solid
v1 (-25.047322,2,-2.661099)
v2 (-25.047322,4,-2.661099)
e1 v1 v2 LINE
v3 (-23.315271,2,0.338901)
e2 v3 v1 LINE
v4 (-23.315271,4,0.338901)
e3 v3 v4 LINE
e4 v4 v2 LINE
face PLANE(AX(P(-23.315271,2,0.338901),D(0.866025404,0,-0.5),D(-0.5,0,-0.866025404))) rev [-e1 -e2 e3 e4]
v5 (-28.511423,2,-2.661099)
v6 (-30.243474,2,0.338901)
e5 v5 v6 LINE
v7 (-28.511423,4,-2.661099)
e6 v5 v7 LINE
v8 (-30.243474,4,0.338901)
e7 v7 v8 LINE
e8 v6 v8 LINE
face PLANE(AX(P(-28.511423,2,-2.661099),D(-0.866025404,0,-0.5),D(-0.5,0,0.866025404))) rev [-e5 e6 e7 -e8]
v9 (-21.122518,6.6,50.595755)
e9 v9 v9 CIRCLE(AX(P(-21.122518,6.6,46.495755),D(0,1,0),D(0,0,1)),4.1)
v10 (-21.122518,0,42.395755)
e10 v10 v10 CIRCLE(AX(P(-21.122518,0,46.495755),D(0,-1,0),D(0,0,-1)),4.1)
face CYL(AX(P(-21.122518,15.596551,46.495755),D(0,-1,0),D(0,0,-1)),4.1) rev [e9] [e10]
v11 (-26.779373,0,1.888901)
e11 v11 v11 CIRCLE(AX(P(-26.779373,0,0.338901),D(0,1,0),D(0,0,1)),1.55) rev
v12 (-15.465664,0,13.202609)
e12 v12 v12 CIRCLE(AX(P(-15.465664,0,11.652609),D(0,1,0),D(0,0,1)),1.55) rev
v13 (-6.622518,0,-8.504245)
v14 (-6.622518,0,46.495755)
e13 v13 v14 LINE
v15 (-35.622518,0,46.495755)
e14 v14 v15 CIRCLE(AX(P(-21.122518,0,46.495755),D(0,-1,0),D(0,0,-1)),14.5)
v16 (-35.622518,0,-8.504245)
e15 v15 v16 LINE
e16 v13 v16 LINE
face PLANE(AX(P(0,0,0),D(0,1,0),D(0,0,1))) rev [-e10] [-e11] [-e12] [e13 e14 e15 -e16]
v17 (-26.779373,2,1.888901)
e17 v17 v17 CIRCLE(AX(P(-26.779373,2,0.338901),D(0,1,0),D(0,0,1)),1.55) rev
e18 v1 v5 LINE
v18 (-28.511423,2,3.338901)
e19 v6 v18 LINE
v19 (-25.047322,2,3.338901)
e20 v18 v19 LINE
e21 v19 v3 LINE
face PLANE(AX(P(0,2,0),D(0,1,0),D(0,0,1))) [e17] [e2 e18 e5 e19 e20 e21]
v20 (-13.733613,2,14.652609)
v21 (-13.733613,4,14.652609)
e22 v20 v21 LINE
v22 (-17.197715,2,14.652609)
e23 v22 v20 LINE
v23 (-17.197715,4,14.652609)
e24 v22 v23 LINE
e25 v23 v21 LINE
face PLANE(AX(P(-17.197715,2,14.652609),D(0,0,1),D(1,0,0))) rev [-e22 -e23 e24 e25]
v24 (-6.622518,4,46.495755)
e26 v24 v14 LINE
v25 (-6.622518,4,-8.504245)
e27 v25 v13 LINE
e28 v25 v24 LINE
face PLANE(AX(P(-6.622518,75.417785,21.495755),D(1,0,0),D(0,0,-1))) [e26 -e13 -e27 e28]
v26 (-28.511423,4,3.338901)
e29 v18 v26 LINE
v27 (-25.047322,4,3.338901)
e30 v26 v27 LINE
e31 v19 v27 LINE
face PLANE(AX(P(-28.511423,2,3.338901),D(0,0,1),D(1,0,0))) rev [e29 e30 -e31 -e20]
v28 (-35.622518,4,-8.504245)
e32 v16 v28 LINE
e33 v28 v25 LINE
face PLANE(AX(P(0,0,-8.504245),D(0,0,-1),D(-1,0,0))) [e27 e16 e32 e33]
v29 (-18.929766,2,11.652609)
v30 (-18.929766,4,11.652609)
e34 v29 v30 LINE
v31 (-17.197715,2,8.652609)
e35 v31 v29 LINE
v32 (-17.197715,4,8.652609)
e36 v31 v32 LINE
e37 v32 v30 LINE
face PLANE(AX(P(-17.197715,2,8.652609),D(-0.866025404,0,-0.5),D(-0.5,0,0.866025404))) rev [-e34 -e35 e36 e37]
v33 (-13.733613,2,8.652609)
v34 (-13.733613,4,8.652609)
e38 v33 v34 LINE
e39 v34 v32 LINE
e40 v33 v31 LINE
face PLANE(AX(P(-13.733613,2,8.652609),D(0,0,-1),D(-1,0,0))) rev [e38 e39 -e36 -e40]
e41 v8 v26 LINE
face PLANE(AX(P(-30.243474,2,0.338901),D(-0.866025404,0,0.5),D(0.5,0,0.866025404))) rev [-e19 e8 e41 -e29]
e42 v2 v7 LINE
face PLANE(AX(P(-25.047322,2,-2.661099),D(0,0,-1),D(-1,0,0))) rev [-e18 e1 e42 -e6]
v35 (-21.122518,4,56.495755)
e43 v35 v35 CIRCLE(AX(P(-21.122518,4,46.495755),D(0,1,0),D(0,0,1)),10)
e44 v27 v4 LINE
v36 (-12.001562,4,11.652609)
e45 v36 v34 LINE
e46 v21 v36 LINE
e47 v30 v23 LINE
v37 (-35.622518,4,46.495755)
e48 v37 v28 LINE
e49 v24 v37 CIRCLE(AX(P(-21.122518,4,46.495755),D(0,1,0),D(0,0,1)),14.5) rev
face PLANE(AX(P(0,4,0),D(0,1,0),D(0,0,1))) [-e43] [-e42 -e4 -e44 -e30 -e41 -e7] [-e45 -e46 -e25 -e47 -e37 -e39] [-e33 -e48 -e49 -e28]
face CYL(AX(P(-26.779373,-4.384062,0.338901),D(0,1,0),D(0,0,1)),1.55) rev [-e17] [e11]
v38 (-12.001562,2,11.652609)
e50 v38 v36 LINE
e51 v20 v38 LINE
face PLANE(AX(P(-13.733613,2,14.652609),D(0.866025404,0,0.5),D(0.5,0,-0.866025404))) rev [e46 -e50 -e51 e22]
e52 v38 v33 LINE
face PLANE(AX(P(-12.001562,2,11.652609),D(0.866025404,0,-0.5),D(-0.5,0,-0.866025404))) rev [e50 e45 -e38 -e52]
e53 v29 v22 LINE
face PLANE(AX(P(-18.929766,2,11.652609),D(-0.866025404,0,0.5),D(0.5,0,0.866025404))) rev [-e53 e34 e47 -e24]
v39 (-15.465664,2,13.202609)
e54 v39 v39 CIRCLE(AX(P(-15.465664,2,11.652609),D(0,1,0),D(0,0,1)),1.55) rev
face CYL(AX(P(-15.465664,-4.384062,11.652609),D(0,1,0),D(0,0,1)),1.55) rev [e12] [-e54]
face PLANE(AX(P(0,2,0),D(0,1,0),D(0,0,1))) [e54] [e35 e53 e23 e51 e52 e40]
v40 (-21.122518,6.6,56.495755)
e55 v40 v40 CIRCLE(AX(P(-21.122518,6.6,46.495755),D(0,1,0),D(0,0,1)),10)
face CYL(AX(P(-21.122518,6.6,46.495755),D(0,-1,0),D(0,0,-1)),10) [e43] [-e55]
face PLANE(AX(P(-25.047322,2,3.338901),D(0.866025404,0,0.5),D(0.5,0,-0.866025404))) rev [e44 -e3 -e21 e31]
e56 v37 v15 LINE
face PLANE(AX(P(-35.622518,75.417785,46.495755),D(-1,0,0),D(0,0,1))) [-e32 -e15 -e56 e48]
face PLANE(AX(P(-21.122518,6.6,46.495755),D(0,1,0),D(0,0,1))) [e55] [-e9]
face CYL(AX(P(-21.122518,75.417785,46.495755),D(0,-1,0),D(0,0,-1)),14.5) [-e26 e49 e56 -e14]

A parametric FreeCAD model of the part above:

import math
import FreeCAD as App
import Part
import Sketcher

V = App.Vector
Q = App.Units.Quantity

doc = App.newDocument("Part")
params = doc.addObject("Spreadsheet::Sheet", "Params")
for row, (alias, value) in enumerate([
    ("sketch1_width", "50 mm"),
    ("pad1_length", "4 mm"),
    ("sketch2_diameter", "8.2 mm"),
    ("pocket1_length", "4 mm"),
    ("sketch3_diameter", "20 mm"),
    ("sketch3_diameter2", "8.2 mm"),
    ("pad2_length", "2.6 mm"),
    ("sketch4_radius", "14.5 mm"),
    ("sketch4_height", "25 mm"),
    ("pocket2_length", "4 mm"),
    ("sketch5_width", "29 mm"),
    ("sketch5_height", "4 mm"),
    ("pad3_length", "30 mm"),
    ("sketch6_diameter", "3.1 mm"),
    ("pocket3_length", "4 mm"),
    ("pocket4_length", "2 mm"),
], start=1):
    params.set(f"A{row}", alias)
    params.set(f"B{row}", "=" + value)
    params.setAlias(f"B{row}", alias)

body = doc.addObject("PartDesign::Body", "Body")

sketch1 = body.newObject("Sketcher::SketchObject", "Sketch")
sketch1.AttachmentSupport = (doc.getObject("XZ_Plane"), [""])
sketch1.MapMode = "FlatFace"
sketch1.addGeometry([
    Part.LineSegment(V(-46.122518, 21.495755, 0), V(-46.122518, 71.495755, 0)),
    Part.LineSegment(V(-46.122518, 71.495755, 0), V(3.877482, 71.495755, 0)),
    Part.LineSegment(V(3.877482, 71.495755, 0), V(3.877482, 21.495755, 0)),
    Part.LineSegment(V(3.877482, 21.495755, 0), V(-46.122518, 21.495755, 0)),
], False)
sketch1.addConstraint([
    Sketcher.Constraint("Coincident", 0, 2, 1, 1),
    Sketcher.Constraint("Coincident", 1, 2, 2, 1),
    Sketcher.Constraint("Coincident", 2, 2, 3, 1),
    Sketcher.Constraint("Coincident", 3, 2, 0, 1),
    Sketcher.Constraint("Vertical", 0),
    Sketcher.Constraint("Horizontal", 1),
    Sketcher.Constraint("Vertical", 2),
    Sketcher.Constraint("Horizontal", 3),
    Sketcher.Constraint("Equal", 3, 0),
    Sketcher.Constraint("DistanceX", 1, 1, 1, 2, Q("50 mm")),
    Sketcher.Constraint("DistanceX", 0, 2, -1, 1, Q("46.122518 mm")),
    Sketcher.Constraint("DistanceY", -1, 1, 0, 2, Q("71.495755 mm")),
])
sketch1.setExpression("Constraints[9]", "Params.sketch1_width")
pad1 = body.newObject("PartDesign::Pad", "Pad")
pad1.Profile = sketch1
pad1.setExpression("Length", "Params.pad1_length")
pad1.Reversed = True

sketch2 = body.newObject("Sketcher::SketchObject", "Sketch001")
sketch2.AttachmentSupport = (doc.getObject("XZ_Plane"), [""])
sketch2.MapMode = "FlatFace"
sketch2.addGeometry(Part.Circle(V(-21.122518, 46.495755, 0), V(0, 0, 1), 4.1), False)
sketch2.addConstraint([
    Sketcher.Constraint("Diameter", 0, Q("8.2 mm")),
    Sketcher.Constraint("DistanceX", 0, 3, -1, 1, Q("21.122518 mm")),
    Sketcher.Constraint("DistanceY", -1, 1, 0, 3, Q("46.495755 mm")),
])
sketch2.setExpression("Constraints[0]", "Params.sketch2_diameter")
pocket1 = body.newObject("PartDesign::Pocket", "Pocket")
pocket1.Profile = sketch2
pocket1.setExpression("Length", "Params.pocket1_length")

sketch3 = body.newObject("Sketcher::SketchObject", "Sketch002")
sketch3.AttachmentSupport = (doc.getObject("XZ_Plane"), [""])
sketch3.MapMode = "FlatFace"
sketch3.AttachmentOffset = App.Placement(V(0, 0, -4), App.Rotation())
sketch3.addGeometry([
    Part.Circle(V(-21.122518, 46.495755, 0), V(0, 0, 1), 10),
    Part.Circle(V(-21.122518, 46.495755, 0), V(0, 0, 1), 4.1),
], False)
sketch3.addConstraint([
    Sketcher.Constraint("Coincident", 1, 3, 0, 3),
    Sketcher.Constraint("Diameter", 0, Q("20 mm")),
    Sketcher.Constraint("Diameter", 1, Q("8.2 mm")),
    Sketcher.Constraint("DistanceX", 0, 3, -1, 1, Q("21.122518 mm")),
    Sketcher.Constraint("DistanceY", -1, 1, 0, 3, Q("46.495755 mm")),
])
sketch3.setExpression("Constraints[1]", "Params.sketch3_diameter")
sketch3.setExpression("Constraints[2]", "Params.sketch3_diameter2")
pad2 = body.newObject("PartDesign::Pad", "Pad001")
pad2.Profile = sketch3
pad2.setExpression("Length", "Params.pad2_length")
pad2.Reversed = True

sketch4 = body.newObject("Sketcher::SketchObject", "Sketch003")
sketch4.AttachmentSupport = (doc.getObject("XZ_Plane"), [""])
sketch4.MapMode = "FlatFace"
sketch4.addGeometry([
    Part.LineSegment(V(-54.225, 79.598, 0), V(-54.225, 13.394, 0)),
    Part.LineSegment(V(-54.225, 13.394, 0), V(11.979, 13.394, 0)),
    Part.LineSegment(V(11.979, 13.394, 0), V(11.979, 79.598, 0)),
    Part.LineSegment(V(11.979, 79.598, 0), V(-54.225, 79.598, 0)),
    Part.LineSegment(V(-35.622518, 21.495755, 0), V(-35.622518, 46.495755, 0)),
    Part.ArcOfCircle(Part.Circle(V(-21.122518, 46.495755, 0), V(0, 0, 1), 14.5), math.radians(0), math.radians(180)),
    Part.LineSegment(V(-6.622518, 46.495755, 0), V(-6.622518, 21.495755, 0)),
    Part.LineSegment(V(-6.622518, 21.495755, 0), V(-35.622518, 21.495755, 0)),
], False)
sketch4.addConstraint([
    Sketcher.Constraint("Coincident", 0, 2, 1, 1),
    Sketcher.Constraint("Coincident", 1, 2, 2, 1),
    Sketcher.Constraint("Coincident", 2, 2, 3, 1),
    Sketcher.Constraint("Coincident", 3, 2, 0, 1),
    Sketcher.Constraint("Tangent", 4, 2, 5, 2),
    Sketcher.Constraint("Tangent", 5, 1, 6, 1),
    Sketcher.Constraint("Coincident", 6, 2, 7, 1),
    Sketcher.Constraint("Coincident", 7, 2, 4, 1),
    Sketcher.Constraint("Vertical", 0),
    Sketcher.Constraint("Horizontal", 1),
    Sketcher.Constraint("Vertical", 2),
    Sketcher.Constraint("Horizontal", 3),
    Sketcher.Constraint("Vertical", 4),
    Sketcher.Constraint("Vertical", 6),
    Sketcher.Constraint("Horizontal", 7),
    Sketcher.Constraint("Equal", 3, 0),
    Sketcher.Constraint("Radius", 5, Q("14.5 mm")),
    Sketcher.Constraint("DistanceY", 4, 1, 4, 2, Q("25 mm")),
    Sketcher.Constraint("DistanceX", 1, 1, 1, 2, Q("66.204 mm")),
    Sketcher.Constraint("DistanceX", 0, 2, -1, 1, Q("54.225 mm")),
    Sketcher.Constraint("DistanceY", -1, 1, 0, 2, Q("13.394 mm")),
    Sketcher.Constraint("DistanceX", 5, 3, -1, 1, Q("21.122518 mm")),
    Sketcher.Constraint("DistanceY", -1, 1, 5, 3, Q("46.495755 mm")),
])
sketch4.setExpression("Constraints[16]", "Params.sketch4_radius")
sketch4.setExpression("Constraints[17]", "Params.sketch4_height")
pocket2 = body.newObject("PartDesign::Pocket", "Pocket001")
pocket2.Profile = sketch4
pocket2.setExpression("Length", "Params.pocket2_length")

sketch5 = body.newObject("Sketcher::SketchObject", "Sketch004")
sketch5.AttachmentSupport = (doc.getObject("XY_Plane"), [""])
sketch5.MapMode = "FlatFace"
sketch5.AttachmentOffset = App.Placement(V(0, 0, 21.495755), App.Rotation())
sketch5.addGeometry([
    Part.LineSegment(V(-6.622518, 4, 0), V(-6.622518, 0, 0)),
    Part.LineSegment(V(-6.622518, 0, 0), V(-35.622518, 0, 0)),
    Part.LineSegment(V(-35.622518, 0, 0), V(-35.622518, 4, 0)),
    Part.LineSegment(V(-35.622518, 4, 0), V(-6.622518, 4, 0)),
], False)
sketch5.addConstraint([
    Sketcher.Constraint("Coincident", 0, 2, 1, 1),
    Sketcher.Constraint("Coincident", 1, 2, 2, 1),
    Sketcher.Constraint("Coincident", 2, 2, 3, 1),
    Sketcher.Constraint("Coincident", 3, 2, 0, 1),
    Sketcher.Constraint("Vertical", 0),
    Sketcher.Constraint("Horizontal", 1),
    Sketcher.Constraint("Vertical", 2),
    Sketcher.Constraint("Horizontal", 3),
    Sketcher.Constraint("PointOnObject", 0, 2, -1),
    Sketcher.Constraint("DistanceX", 1, 2, 1, 1, Q("29 mm")),
    Sketcher.Constraint("DistanceY", 0, 2, 0, 1, Q("4 mm")),
    Sketcher.Constraint("DistanceX", 0, 2, -1, 1, Q("6.622518 mm")),
])
sketch5.setExpression("Constraints[9]", "Params.sketch5_width")
sketch5.setExpression("Constraints[10]", "Params.sketch5_height")
pad3 = body.newObject("PartDesign::Pad", "Pad002")
pad3.Profile = sketch5
pad3.setExpression("Length", "Params.pad3_length")
pad3.Reversed = True

sketch6 = body.newObject("Sketcher::SketchObject", "Sketch005")
sketch6.AttachmentSupport = (doc.getObject("XZ_Plane"), [""])
sketch6.MapMode = "FlatFace"
sketch6.AttachmentOffset = App.Placement(V(0, 0, -4), App.Rotation())
sketch6.addGeometry([
    Part.Circle(V(-26.779373, 0.338901, 0), V(0, 0, 1), 1.55),
    Part.Circle(V(-15.465664, 11.652609, 0), V(0, 0, 1), 1.55),
], False)
sketch6.addConstraint([
    Sketcher.Constraint("Equal", 0, 1),
    Sketcher.Constraint("Diameter", 0, Q("3.1 mm")),
    Sketcher.Constraint("DistanceY", -1, 1, 0, 3, Q("0.338901 mm")),
    Sketcher.Constraint("DistanceY", -1, 1, 1, 3, Q("11.652609 mm")),
    Sketcher.Constraint("DistanceX", 0, 3, 1, 3, Q("11.313708 mm")),
    Sketcher.Constraint("DistanceX", 0, 3, -1, 1, Q("26.779373 mm")),
])
sketch6.setExpression("Constraints[1]", "Params.sketch6_diameter")
pocket3 = body.newObject("PartDesign::Pocket", "Pocket002")
pocket3.Profile = sketch6
pocket3.setExpression("Length", "Params.pocket3_length")
pocket3.Reversed = True

sketch7 = body.newObject("Sketcher::SketchObject", "Sketch006")
sketch7.AttachmentSupport = (doc.getObject("XZ_Plane"), [""])
sketch7.MapMode = "FlatFace"
sketch7.AttachmentOffset = App.Placement(V(0, 0, -4), App.Rotation())
sketch7.addGeometry([
    Part.LineSegment(V(-25.047322, -2.661099, 0), V(-28.511423, -2.661099, 0)),
    Part.LineSegment(V(-28.511423, -2.661099, 0), V(-30.243474, 0.338901, 0)),
    Part.LineSegment(V(-30.243474, 0.338901, 0), V(-28.511423, 3.338901, 0)),
    Part.LineSegment(V(-28.511423, 3.338901, 0), V(-25.047322, 3.338901, 0)),
    Part.LineSegment(V(-25.047322, 3.338901, 0), V(-23.315271, 0.338901, 0)),
    Part.LineSegment(V(-23.315271, 0.338901, 0), V(-25.047322, -2.661099, 0)),
    Part.LineSegment(V(-13.733613, 8.652609, 0), V(-17.197715, 8.652609, 0)),
    Part.LineSegment(V(-17.197715, 8.652609, 0), V(-18.929766, 11.652609, 0)),
    Part.LineSegment(V(-18.929766, 11.652609, 0), V(-17.197715, 14.652609, 0)),
    Part.LineSegment(V(-17.197715, 14.652609, 0), V(-13.733613, 14.652609, 0)),
    Part.LineSegment(V(-13.733613, 14.652609, 0), V(-12.001562, 11.652609, 0)),
    Part.LineSegment(V(-12.001562, 11.652609, 0), V(-13.733613, 8.652609, 0)),
], False)
sketch7.addConstraint([
    Sketcher.Constraint("Coincident", 0, 2, 1, 1),
    Sketcher.Constraint("Coincident", 1, 2, 2, 1),
    Sketcher.Constraint("Coincident", 2, 2, 3, 1),
    Sketcher.Constraint("Coincident", 3, 2, 4, 1),
    Sketcher.Constraint("Coincident", 4, 2, 5, 1),
    Sketcher.Constraint("Coincident", 5, 2, 0, 1),
    Sketcher.Constraint("Coincident", 6, 2, 7, 1),
    Sketcher.Constraint("Coincident", 7, 2, 8, 1),
    Sketcher.Constraint("Coincident", 8, 2, 9, 1),
    Sketcher.Constraint("Coincident", 9, 2, 10, 1),
    Sketcher.Constraint("Coincident", 10, 2, 11, 1),
    Sketcher.Constraint("Coincident", 11, 2, 6, 1),
    Sketcher.Constraint("Horizontal", 0),
    Sketcher.Constraint("Horizontal", 3),
    Sketcher.Constraint("Horizontal", 6),
    Sketcher.Constraint("Horizontal", 9),
    Sketcher.Constraint("Parallel", 1, 4),
    Sketcher.Constraint("Parallel", 2, 5),
    Sketcher.Constraint("Parallel", 4, 7),
    Sketcher.Constraint("Parallel", 5, 8),
    Sketcher.Constraint("Parallel", 7, 10),
    Sketcher.Constraint("Parallel", 8, 11),
    Sketcher.Constraint("Horizontal", 1, 2, 4, 2),
    Sketcher.Constraint("Horizontal", 7, 2, 10, 2),
    Sketcher.Constraint("Vertical", 0, 2, 2, 2),
    Sketcher.Constraint("Vertical", 3, 2, 5, 2),
    Sketcher.Constraint("Vertical", 6, 2, 8, 2),
    Sketcher.Constraint("Equal", 3, 6),
    Sketcher.Constraint("Equal", 5, 7),
    Sketcher.Constraint("Angle", 1, Q("120 deg")),
    Sketcher.Constraint("DistanceY", 0, 2, 1, 2, Q("3 mm")),
    Sketcher.Constraint("DistanceX", 0, 2, 0, 1, Q("3.464102 mm")),
    Sketcher.Constraint("DistanceY", 0, 2, -1, 1, Q("2.661099 mm")),
    Sketcher.Constraint("DistanceX", 3, 2, -1, 1, Q("25.047322 mm")),
    Sketcher.Constraint("DistanceY", -1, 1, 6, 2, Q("8.652609 mm")),
    Sketcher.Constraint("DistanceX", 2, 2, 6, 2, Q("11.313708 mm")),
])
pocket4 = body.newObject("PartDesign::Pocket", "Pocket003")
pocket4.Profile = sketch7
pocket4.setExpression("Length", "Params.pocket4_length")
pocket4.Reversed = True

doc.recompute()
